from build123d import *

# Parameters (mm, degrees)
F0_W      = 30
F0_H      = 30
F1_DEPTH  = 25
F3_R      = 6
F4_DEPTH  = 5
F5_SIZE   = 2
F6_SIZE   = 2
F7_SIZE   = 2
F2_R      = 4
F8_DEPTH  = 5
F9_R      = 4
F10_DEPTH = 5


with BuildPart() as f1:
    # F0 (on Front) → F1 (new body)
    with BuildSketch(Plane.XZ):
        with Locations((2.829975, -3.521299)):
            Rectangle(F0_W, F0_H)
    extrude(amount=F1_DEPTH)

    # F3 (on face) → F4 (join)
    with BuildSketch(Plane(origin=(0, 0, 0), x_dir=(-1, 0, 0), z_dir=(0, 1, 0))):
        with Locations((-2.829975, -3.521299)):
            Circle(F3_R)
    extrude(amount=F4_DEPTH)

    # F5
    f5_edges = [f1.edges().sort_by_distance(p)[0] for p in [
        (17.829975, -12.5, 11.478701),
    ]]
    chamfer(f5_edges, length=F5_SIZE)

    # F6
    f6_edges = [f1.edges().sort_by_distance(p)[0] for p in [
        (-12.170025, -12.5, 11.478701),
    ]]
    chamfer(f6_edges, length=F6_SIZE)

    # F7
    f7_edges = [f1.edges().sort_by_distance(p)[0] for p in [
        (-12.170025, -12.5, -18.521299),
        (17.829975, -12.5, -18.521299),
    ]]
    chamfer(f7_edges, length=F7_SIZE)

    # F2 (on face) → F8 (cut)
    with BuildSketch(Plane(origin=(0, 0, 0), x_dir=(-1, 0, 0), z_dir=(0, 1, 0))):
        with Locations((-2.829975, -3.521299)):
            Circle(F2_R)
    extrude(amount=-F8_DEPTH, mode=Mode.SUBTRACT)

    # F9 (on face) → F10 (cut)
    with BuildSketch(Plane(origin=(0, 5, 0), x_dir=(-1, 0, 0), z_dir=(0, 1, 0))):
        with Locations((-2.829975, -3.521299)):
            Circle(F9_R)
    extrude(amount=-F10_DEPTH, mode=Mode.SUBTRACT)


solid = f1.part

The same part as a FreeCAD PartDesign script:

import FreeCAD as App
import Part
import Sketcher
Q = App.Units.Quantity


def edges_at(feature, points):
    """Names of the edges that pass closest to the given points."""
    edges = feature.Shape.Edges
    near = lambda p: min(range(len(edges)), key=lambda i: edges[i].distToShape(Part.Vertex(*p))[0])
    return sorted({f"Edge{near(p) + 1}" for p in points})


def add_polygon(sketch, points):
    """Adds a closed chain of lines whose ends are joined by coincident constraints."""
    first, n = sketch.GeometryCount, len(points)
    for a, b in zip(points, points[1:] + points[:1]):
        sketch.addGeometry(Part.LineSegment(App.Vector(*a, 0), App.Vector(*b, 0)), False)
    for i in range(n):
        sketch.addConstraint(Sketcher.Constraint("Coincident", first + i, 2, first + (i + 1) % n, 1))

doc = App.newDocument("Part")
body = doc.addObject("PartDesign::Body", "Body")

sketch1 = body.newObject("Sketcher::SketchObject", "Sketch")
sketch1.AttachmentSupport = (doc.getObject("XZ_Plane"), [""])
sketch1.MapMode = "FlatFace"
add_polygon(sketch1, [(-12.170025, 11.478701), (-12.170025, -18.521299), (17.829975, -18.521299), (17.829975, 11.478701)])
sketch1.addConstraint([
    Sketcher.Constraint("Vertical", 0),
    Sketcher.Constraint("Horizontal", 1),
    Sketcher.Constraint("Vertical", 2),
    Sketcher.Constraint("Horizontal", 3),
    Sketcher.Constraint("Equal", 3, 0),
    Sketcher.Constraint("DistanceX", 1, 1, 1, 2, Q("30 mm")),
    Sketcher.Constraint("DistanceY", 0, 2, -1, 1, Q("18.521299 mm")),
    Sketcher.Constraint("DistanceX", 0, 2, -1, 1, Q("12.170025 mm")),
])
pad1 = body.newObject("PartDesign::Pad", "Pad")
pad1.Profile = sketch1
pad1.Length = 25

sketch2 = body.newObject("Sketcher::SketchObject", "Sketch001")
sketch2.AttachmentSupport = (doc.getObject("XZ_Plane"), [""])
sketch2.MapMode = "FlatFace"
sketch2.addGeometry(Part.Circle(App.Vector(2.829975, -3.521299, 0), App.Vector(0, 0, 1), 6), False)
sketch2.addConstraint([
    Sketcher.Constraint("Diameter", 0, Q("12 mm")),
    Sketcher.Constraint("DistanceY", 0, 3, -1, 1, Q("3.521299 mm")),
    Sketcher.Constraint("DistanceX", -1, 1, 0, 3, Q("2.829975 mm")),
])
pad2 = body.newObject("PartDesign::Pad", "Pad001")
pad2.Profile = sketch2
pad2.Length = 5
pad2.Reversed = True
doc.recompute()

chamfer = body.newObject("PartDesign::Chamfer", "Chamfer")
chamfer.Base = (pad2, edges_at(pad2, [(17.83, -12.5, 11.479)]))
chamfer.Size = 2
doc.recompute()

chamfer2 = body.newObject("PartDesign::Chamfer", "Chamfer001")
chamfer2.Base = (chamfer, edges_at(chamfer, [(-12.17, -12.5, 11.479)]))
chamfer2.Size = 2
doc.recompute()

chamfer3 = body.newObject("PartDesign::Chamfer", "Chamfer002")
chamfer3.Base = (chamfer2, edges_at(chamfer2, [(-12.17, -12.5, -18.521), (17.83, -12.5, -18.521)]))
chamfer3.Size = 2

sketch3 = body.newObject("Sketcher::SketchObject", "Sketch002")
sketch3.AttachmentSupport = (doc.getObject("XZ_Plane"), [""])
sketch3.MapMode = "FlatFace"
sketch3.addGeometry(Part.Circle(App.Vector(2.829975, -3.521299, 0), App.Vector(0, 0, 1), 4), False)
sketch3.addConstraint([
    Sketcher.Constraint("Diameter", 0, Q("8 mm")),
    Sketcher.Constraint("DistanceY", 0, 3, -1, 1, Q("3.521299 mm")),
    Sketcher.Constraint("DistanceX", -1, 1, 0, 3, Q("2.829975 mm")),
])
pocket1 = body.newObject("PartDesign::Pocket", "Pocket")
pocket1.Profile = sketch3
pocket1.Length = 5
pocket1.Reversed = True

sketch4 = body.newObject("Sketcher::SketchObject", "Sketch003")
sketch4.AttachmentSupport = (doc.getObject("XZ_Plane"), [""])
sketch4.MapMode = "FlatFace"
sketch4.AttachmentOffset = App.Placement(App.Vector(0, 0, -5), App.Rotation())
sketch4.addGeometry(Part.Circle(App.Vector(2.829975, -3.521299, 0), App.Vector(0, 0, 1), 4), False)
sketch4.addConstraint([
    Sketcher.Constraint("Diameter", 0, Q("8 mm")),
    Sketcher.Constraint("DistanceY", 0, 3, -1, 1, Q("3.521299 mm")),
    Sketcher.Constraint("DistanceX", -1, 1, 0, 3, Q("2.829975 mm")),
])
pocket2 = body.newObject("PartDesign::Pocket", "Pocket001")
pocket2.Profile = sketch4
pocket2.Length = 5
pocket2.Reversed = True

doc.recompute()
